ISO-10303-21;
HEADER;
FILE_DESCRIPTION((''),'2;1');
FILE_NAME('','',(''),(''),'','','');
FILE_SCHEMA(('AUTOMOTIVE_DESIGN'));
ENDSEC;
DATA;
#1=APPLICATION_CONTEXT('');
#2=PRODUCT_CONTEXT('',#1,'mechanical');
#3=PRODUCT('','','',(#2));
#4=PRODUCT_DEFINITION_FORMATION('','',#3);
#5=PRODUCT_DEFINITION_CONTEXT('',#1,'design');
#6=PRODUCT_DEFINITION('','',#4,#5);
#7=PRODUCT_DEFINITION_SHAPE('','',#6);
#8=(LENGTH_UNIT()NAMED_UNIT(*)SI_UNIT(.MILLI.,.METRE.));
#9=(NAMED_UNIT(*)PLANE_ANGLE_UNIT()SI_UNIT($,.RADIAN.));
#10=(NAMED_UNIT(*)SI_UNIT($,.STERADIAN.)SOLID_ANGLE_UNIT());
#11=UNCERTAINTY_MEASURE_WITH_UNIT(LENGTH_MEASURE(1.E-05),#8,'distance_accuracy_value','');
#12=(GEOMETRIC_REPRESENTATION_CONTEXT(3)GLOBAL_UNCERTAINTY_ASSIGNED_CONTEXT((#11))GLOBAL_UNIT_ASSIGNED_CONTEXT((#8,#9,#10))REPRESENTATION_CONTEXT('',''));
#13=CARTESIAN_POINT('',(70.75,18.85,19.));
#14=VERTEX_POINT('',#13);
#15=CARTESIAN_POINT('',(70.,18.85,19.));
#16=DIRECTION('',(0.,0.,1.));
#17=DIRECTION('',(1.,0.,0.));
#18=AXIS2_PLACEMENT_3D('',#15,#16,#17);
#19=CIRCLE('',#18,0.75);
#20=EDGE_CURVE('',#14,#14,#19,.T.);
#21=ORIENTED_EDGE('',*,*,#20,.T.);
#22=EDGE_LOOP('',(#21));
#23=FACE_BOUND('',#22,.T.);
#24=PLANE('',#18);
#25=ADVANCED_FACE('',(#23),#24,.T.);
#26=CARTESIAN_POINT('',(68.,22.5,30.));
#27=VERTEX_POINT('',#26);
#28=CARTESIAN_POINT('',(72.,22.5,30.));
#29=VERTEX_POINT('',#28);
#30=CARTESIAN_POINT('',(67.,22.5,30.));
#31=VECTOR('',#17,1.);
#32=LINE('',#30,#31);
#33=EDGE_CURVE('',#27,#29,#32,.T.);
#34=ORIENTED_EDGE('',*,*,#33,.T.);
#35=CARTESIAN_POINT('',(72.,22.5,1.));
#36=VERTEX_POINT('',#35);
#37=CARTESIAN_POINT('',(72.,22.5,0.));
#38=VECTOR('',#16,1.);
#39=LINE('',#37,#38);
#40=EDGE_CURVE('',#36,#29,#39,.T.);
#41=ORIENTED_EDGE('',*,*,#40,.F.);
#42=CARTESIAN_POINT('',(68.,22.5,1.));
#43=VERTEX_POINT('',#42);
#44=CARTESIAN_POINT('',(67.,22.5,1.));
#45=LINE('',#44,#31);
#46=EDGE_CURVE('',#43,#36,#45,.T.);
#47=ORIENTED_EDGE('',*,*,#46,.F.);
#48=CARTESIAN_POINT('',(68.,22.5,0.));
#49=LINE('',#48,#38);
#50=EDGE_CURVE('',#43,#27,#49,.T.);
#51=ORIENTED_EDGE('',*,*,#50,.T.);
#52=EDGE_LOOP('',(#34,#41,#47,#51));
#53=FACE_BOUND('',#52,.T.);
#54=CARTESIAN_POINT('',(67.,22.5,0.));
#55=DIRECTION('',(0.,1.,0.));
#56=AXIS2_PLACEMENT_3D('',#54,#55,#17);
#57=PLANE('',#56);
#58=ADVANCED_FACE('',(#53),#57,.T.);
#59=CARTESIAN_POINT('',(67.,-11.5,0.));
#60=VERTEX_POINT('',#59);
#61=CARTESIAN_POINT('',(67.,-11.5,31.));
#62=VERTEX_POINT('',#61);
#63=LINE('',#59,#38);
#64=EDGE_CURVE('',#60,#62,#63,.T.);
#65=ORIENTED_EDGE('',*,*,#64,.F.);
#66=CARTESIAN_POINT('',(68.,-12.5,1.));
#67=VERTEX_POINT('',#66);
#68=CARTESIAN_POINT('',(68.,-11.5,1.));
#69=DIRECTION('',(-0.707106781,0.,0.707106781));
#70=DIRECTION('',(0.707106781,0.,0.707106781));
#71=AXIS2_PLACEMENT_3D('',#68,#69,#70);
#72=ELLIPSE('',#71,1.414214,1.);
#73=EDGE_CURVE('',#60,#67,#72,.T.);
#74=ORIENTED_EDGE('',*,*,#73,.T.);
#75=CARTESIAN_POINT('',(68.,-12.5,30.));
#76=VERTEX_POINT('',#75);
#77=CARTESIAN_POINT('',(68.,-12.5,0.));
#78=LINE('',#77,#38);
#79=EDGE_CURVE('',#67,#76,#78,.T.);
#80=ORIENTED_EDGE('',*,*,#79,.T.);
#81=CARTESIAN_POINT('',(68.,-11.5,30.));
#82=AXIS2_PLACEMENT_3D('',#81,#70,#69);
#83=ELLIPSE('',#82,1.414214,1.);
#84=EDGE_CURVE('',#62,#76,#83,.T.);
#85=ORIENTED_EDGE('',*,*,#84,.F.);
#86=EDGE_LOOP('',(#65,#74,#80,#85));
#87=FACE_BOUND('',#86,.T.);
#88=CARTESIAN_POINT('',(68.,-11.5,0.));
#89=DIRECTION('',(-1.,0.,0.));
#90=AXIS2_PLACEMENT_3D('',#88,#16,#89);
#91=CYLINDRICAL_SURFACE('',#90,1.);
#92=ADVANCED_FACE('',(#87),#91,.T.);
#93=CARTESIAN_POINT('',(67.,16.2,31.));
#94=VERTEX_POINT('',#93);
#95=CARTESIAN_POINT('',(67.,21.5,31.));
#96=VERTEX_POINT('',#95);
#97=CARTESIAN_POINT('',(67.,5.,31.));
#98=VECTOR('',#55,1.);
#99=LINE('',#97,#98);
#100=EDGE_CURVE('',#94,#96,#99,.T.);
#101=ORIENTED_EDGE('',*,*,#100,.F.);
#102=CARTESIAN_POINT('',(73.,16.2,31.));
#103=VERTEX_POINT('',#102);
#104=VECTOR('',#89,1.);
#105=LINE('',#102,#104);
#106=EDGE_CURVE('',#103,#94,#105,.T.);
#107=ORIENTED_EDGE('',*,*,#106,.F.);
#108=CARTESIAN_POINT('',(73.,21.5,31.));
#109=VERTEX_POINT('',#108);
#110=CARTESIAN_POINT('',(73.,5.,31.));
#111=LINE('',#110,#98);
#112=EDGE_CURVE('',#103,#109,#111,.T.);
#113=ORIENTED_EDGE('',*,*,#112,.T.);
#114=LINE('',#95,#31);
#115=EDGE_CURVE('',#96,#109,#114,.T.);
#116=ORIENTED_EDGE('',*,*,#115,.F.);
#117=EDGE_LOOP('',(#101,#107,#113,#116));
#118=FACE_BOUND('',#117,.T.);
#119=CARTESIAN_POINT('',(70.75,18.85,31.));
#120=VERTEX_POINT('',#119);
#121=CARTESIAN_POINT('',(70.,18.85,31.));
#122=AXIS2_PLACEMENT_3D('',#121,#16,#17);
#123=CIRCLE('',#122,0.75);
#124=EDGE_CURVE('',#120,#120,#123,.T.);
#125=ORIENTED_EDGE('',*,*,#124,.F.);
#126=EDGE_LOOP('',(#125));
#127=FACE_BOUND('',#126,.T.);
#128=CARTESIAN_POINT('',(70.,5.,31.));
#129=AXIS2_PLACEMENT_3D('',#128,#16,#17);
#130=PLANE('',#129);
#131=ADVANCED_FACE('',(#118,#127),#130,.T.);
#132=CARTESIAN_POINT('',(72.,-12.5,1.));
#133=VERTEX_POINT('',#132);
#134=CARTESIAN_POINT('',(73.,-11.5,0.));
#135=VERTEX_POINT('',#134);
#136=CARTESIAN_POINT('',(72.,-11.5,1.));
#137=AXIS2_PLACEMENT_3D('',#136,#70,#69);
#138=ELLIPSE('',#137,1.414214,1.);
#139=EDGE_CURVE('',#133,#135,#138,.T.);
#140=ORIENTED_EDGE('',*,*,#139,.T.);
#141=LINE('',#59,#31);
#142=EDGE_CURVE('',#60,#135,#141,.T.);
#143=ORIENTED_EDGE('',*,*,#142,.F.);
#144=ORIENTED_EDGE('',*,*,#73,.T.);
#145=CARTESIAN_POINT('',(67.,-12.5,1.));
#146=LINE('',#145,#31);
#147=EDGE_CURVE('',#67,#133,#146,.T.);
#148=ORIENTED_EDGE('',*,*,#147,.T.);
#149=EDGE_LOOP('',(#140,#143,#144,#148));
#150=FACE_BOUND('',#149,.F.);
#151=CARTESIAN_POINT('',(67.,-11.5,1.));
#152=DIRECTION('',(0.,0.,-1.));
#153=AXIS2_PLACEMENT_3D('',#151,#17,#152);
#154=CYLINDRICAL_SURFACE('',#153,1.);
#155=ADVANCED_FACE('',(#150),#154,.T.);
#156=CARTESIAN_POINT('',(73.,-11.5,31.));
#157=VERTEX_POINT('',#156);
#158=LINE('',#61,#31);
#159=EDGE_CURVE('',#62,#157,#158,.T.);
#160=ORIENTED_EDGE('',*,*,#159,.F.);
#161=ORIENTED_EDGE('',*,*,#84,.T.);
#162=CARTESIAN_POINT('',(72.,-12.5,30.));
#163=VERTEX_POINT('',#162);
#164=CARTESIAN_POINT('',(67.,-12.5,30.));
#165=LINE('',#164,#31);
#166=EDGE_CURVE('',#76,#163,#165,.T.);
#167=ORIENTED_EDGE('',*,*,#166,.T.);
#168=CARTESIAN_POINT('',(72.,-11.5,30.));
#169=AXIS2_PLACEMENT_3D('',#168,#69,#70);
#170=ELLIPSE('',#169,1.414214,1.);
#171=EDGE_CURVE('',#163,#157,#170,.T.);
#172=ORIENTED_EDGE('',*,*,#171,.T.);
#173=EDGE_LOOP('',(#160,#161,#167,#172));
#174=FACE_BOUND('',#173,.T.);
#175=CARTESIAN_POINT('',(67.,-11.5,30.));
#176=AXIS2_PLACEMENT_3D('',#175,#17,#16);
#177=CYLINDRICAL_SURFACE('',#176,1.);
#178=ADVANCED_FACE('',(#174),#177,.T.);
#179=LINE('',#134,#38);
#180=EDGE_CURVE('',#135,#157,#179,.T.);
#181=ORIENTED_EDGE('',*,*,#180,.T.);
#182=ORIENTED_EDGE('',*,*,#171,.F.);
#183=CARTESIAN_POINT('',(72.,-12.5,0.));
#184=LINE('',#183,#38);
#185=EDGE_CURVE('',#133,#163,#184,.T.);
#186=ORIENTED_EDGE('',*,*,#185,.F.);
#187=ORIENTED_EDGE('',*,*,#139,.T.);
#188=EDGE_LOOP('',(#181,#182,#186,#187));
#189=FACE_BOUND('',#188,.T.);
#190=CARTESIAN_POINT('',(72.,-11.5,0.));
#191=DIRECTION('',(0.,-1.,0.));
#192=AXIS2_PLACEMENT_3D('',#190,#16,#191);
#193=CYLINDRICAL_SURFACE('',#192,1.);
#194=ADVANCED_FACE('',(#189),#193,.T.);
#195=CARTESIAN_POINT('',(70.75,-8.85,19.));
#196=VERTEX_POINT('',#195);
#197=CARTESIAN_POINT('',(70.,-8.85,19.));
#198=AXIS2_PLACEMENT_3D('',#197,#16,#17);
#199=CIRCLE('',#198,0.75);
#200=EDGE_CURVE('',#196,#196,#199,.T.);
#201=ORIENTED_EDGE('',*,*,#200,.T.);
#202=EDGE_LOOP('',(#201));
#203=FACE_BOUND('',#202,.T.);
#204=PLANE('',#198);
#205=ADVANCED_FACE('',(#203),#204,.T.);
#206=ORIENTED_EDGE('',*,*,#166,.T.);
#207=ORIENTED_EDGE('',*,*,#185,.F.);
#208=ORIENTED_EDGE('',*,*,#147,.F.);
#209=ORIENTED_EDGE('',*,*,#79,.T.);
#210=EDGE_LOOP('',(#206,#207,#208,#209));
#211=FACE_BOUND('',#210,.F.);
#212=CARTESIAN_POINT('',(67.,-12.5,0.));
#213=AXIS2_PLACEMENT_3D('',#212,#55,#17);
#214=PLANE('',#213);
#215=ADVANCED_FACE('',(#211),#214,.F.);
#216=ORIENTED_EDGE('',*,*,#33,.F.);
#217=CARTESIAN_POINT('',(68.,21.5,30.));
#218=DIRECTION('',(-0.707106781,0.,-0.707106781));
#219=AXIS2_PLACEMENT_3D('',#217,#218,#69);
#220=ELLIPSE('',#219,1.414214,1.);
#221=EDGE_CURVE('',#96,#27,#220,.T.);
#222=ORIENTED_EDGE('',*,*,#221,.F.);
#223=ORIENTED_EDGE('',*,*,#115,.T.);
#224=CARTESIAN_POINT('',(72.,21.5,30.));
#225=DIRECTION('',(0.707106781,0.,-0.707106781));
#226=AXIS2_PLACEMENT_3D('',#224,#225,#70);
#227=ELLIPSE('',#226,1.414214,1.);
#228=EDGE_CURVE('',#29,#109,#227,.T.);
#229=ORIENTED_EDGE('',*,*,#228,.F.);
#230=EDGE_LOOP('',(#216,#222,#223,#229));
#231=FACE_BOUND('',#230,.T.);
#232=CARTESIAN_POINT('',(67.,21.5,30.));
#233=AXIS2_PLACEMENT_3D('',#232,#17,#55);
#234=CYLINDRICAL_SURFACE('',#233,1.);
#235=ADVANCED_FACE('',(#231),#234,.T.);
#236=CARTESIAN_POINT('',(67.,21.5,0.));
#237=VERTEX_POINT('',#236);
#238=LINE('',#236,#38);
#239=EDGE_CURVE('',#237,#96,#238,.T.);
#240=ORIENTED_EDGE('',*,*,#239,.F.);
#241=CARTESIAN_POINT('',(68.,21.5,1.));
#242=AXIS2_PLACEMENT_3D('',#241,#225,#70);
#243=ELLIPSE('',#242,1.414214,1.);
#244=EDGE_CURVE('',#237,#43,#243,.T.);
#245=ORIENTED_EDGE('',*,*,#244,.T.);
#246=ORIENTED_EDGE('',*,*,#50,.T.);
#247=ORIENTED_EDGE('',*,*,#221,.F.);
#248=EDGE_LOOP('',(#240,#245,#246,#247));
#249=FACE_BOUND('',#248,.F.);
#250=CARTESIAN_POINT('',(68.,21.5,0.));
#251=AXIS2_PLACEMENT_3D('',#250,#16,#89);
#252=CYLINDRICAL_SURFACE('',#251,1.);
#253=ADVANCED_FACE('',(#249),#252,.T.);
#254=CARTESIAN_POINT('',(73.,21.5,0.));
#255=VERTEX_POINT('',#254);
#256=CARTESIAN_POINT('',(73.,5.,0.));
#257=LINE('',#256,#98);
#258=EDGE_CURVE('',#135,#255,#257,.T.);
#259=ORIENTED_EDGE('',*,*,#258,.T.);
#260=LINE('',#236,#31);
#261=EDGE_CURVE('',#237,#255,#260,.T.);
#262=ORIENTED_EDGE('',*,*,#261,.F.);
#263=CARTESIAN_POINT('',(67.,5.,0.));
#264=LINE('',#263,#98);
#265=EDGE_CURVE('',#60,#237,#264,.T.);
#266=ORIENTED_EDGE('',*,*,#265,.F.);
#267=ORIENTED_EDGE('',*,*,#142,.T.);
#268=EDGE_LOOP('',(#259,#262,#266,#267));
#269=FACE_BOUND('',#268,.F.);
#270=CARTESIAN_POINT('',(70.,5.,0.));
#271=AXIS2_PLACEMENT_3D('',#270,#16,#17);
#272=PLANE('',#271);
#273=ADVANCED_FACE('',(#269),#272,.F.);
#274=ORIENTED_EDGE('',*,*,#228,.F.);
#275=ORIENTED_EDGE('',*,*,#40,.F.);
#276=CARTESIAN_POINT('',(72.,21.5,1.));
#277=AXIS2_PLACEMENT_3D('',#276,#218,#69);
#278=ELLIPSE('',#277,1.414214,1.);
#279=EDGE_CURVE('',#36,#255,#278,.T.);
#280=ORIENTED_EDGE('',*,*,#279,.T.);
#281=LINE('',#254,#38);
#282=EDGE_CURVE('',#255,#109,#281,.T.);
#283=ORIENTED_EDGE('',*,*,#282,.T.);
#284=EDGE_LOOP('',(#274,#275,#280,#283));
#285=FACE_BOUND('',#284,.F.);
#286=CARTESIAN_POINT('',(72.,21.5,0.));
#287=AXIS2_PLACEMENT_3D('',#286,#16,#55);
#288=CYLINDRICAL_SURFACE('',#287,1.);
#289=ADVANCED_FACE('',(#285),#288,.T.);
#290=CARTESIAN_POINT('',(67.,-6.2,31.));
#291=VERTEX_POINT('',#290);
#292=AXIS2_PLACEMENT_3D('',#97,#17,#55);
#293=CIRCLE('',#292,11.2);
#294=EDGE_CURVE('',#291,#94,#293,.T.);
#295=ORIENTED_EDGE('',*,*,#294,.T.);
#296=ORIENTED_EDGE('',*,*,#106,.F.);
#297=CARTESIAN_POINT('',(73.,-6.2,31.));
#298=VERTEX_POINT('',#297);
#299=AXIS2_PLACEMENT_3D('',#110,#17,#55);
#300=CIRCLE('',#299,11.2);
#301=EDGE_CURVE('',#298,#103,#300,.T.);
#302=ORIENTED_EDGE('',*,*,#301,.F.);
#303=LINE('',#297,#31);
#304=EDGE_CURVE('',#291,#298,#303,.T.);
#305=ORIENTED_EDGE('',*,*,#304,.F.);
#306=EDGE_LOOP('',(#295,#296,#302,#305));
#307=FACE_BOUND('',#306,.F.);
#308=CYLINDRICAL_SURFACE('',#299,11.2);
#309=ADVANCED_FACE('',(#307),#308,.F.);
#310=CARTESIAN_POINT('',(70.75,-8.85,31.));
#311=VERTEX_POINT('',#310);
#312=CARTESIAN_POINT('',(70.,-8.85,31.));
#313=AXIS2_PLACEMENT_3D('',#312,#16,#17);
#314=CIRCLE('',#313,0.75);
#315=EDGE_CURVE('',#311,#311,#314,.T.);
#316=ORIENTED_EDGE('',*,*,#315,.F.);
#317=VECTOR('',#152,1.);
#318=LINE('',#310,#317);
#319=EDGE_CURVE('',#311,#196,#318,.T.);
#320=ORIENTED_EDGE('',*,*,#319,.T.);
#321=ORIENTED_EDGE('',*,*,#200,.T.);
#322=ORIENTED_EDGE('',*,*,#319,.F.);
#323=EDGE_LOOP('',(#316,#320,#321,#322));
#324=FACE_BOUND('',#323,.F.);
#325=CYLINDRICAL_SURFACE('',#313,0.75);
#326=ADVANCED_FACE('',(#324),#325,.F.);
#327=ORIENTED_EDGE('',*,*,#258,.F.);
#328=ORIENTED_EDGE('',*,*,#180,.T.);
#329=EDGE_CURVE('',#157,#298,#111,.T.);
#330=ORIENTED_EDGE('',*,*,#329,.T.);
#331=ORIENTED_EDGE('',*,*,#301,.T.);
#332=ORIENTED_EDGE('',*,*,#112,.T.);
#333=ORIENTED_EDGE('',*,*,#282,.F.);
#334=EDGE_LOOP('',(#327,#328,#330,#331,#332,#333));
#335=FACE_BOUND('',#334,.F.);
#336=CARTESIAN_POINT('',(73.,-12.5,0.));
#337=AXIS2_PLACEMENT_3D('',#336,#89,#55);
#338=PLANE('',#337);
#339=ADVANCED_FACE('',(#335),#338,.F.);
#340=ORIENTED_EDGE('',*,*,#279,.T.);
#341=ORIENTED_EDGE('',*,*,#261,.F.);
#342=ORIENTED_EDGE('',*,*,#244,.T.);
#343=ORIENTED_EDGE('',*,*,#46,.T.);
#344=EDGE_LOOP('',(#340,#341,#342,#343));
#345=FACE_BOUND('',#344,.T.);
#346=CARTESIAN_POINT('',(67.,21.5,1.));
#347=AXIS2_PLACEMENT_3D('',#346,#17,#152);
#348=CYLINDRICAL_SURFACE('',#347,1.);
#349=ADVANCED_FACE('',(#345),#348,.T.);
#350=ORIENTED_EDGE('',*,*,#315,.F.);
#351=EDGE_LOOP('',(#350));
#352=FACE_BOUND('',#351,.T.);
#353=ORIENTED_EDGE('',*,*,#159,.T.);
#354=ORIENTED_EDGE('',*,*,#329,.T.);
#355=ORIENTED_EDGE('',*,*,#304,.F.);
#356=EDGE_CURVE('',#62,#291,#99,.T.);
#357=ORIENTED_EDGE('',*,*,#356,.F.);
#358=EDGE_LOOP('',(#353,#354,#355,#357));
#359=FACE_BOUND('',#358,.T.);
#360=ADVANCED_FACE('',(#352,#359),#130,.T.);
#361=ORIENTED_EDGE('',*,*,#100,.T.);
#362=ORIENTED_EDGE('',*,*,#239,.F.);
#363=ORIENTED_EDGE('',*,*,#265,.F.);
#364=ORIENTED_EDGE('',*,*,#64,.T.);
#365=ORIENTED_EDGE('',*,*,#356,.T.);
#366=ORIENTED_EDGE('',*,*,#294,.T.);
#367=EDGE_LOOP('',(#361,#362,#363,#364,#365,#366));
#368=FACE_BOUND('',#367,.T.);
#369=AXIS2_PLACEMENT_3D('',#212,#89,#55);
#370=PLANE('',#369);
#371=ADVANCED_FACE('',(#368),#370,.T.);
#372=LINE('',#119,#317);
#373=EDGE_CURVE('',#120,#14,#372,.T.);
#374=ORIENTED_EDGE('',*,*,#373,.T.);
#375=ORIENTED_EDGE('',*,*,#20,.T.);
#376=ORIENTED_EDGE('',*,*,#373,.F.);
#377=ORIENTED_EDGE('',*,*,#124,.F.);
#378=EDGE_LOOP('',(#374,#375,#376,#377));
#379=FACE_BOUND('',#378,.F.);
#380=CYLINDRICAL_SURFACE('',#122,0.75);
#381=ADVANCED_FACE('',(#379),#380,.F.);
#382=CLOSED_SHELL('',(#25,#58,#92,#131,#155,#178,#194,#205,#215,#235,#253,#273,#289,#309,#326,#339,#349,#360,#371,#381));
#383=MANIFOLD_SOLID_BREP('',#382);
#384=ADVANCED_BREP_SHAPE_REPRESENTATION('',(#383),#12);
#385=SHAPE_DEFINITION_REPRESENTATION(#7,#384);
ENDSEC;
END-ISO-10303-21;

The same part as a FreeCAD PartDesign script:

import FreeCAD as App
import Part
import Sketcher
from FreeCAD import Vector


def edges_at(feature, points):
    """Names of the edges that pass closest to the given points."""
    edges = feature.Shape.Edges
    near = lambda p: min(range(len(edges)), key=lambda i: edges[i].distToShape(Part.Vertex(*p))[0])
    return sorted({f"Edge{near(p) + 1}" for p in points})

doc = App.newDocument("Part")
body = doc.addObject("PartDesign::Body", "Body")

# Sketch on XY plane
sketch1 = body.newObject("Sketcher::SketchObject", "Sketch")
sketch1.AttachmentSupport = (doc.getObject("XY_Plane"), [""])
sketch1.MapMode = "FlatFace"
sketch1.addGeometry(Part.LineSegment(Vector(67, 22.5, 0), Vector(67, -12.5, 0)), False)
sketch1.addGeometry(Part.LineSegment(Vector(67, -12.5, 0), Vector(73, -12.5, 0)), False)
sketch1.addGeometry(Part.LineSegment(Vector(73, -12.5, 0), Vector(73, 22.5, 0)), False)
sketch1.addGeometry(Part.LineSegment(Vector(73, 22.5, 0), Vector(67, 22.5, 0)), False)
sketch1.addConstraint(Sketcher.Constraint("Coincident", 0, 2, 1, 1))
sketch1.addConstraint(Sketcher.Constraint("Coincident", 1, 2, 2, 1))
sketch1.addConstraint(Sketcher.Constraint("Coincident", 2, 2, 3, 1))
sketch1.addConstraint(Sketcher.Constraint("Coincident", 3, 2, 0, 1))
sketch1.addConstraint(Sketcher.Constraint("Vertical", 0))
sketch1.addConstraint(Sketcher.Constraint("Horizontal", 1))
sketch1.addConstraint(Sketcher.Constraint("Vertical", 2))
sketch1.addConstraint(Sketcher.Constraint("Horizontal", 3))
sketch1.addConstraint(Sketcher.Constraint("DistanceX", 1, 1, 1, 2, 6.0))
sketch1.addConstraint(Sketcher.Constraint("DistanceY", 0, 2, 0, 1, 35.0))
sketch1.addConstraint(Sketcher.Constraint("DistanceX", -1, 1, 0, 2, 67.0))
sketch1.addConstraint(Sketcher.Constraint("DistanceY", 0, 2, -1, 1, 12.5))
pad1 = body.newObject("PartDesign::Pad", "Pad")
pad1.Profile = sketch1
pad1.Length = 31

# Sketch on YZ plane
sketch2 = body.newObject("Sketcher::SketchObject", "Sketch001")
sketch2.AttachmentSupport = (doc.getObject("YZ_Plane"), [""])
sketch2.MapMode = "FlatFace"
sketch2.AttachmentOffset = App.Placement(Vector(0, 0, 73), App.Rotation())
sketch2.addGeometry(Part.Circle(Vector(5, 31, 0), Vector(0, 0, 1), 11.2), False)
sketch2.addConstraint(Sketcher.Constraint("Diameter", 0, 22.4))
sketch2.addConstraint(Sketcher.Constraint("DistanceX", -1, 1, 0, 3, 5.0))
sketch2.addConstraint(Sketcher.Constraint("DistanceY", -1, 1, 0, 3, 31.0))
pocket1 = body.newObject("PartDesign::Pocket", "Pocket")
pocket1.Profile = sketch2
pocket1.Type = "ThroughAll"
doc.recompute()

fillet = body.newObject("PartDesign::Fillet", "Fillet")
fillet.Base = (pocket1, edges_at(pocket1, [
    (73, -12.5, 15.5),
    (67, -12.5, 15.5),
    (70, -12.5, 0),
    (70, -12.5, 31),
    (67, 22.5, 15.5),
    (73, 22.5, 15.5),
    (70, 22.5, 0),
    (70, 22.5, 31),
]))
fillet.Radius = 1

# Sketch on XY plane
sketch3 = body.newObject("Sketcher::SketchObject", "Sketch002")
sketch3.AttachmentSupport = (doc.getObject("XY_Plane"), [""])
sketch3.MapMode = "FlatFace"
sketch3.AttachmentOffset = App.Placement(Vector(0, 0, 31), App.Rotation())
sketch3.addGeometry(Part.Circle(Vector(70, 18.85, 0), Vector(0, 0, 1), 0.75), False)
sketch3.addGeometry(Part.Circle(Vector(70, -8.85, 0), Vector(0, 0, 1), 0.75), False)
sketch3.addConstraint(Sketcher.Constraint("Equal", 0, 1))
sketch3.addConstraint(Sketcher.Constraint("Vertical", 0, 3, 1, 3))
sketch3.addConstraint(Sketcher.Constraint("Diameter", 0, 1.5))
sketch3.addConstraint(Sketcher.Constraint("DistanceX", -1, 1, 0, 3, 70.0))
sketch3.addConstraint(Sketcher.Constraint("DistanceY", 1, 3, 0, 3, 27.7))
sketch3.addConstraint(Sketcher.Constraint("DistanceY", -1, 1, 0, 3, 18.85))
pocket2 = body.newObject("PartDesign::Pocket", "Pocket001")
pocket2.Profile = sketch3
pocket2.Length = 12

doc.recompute()
